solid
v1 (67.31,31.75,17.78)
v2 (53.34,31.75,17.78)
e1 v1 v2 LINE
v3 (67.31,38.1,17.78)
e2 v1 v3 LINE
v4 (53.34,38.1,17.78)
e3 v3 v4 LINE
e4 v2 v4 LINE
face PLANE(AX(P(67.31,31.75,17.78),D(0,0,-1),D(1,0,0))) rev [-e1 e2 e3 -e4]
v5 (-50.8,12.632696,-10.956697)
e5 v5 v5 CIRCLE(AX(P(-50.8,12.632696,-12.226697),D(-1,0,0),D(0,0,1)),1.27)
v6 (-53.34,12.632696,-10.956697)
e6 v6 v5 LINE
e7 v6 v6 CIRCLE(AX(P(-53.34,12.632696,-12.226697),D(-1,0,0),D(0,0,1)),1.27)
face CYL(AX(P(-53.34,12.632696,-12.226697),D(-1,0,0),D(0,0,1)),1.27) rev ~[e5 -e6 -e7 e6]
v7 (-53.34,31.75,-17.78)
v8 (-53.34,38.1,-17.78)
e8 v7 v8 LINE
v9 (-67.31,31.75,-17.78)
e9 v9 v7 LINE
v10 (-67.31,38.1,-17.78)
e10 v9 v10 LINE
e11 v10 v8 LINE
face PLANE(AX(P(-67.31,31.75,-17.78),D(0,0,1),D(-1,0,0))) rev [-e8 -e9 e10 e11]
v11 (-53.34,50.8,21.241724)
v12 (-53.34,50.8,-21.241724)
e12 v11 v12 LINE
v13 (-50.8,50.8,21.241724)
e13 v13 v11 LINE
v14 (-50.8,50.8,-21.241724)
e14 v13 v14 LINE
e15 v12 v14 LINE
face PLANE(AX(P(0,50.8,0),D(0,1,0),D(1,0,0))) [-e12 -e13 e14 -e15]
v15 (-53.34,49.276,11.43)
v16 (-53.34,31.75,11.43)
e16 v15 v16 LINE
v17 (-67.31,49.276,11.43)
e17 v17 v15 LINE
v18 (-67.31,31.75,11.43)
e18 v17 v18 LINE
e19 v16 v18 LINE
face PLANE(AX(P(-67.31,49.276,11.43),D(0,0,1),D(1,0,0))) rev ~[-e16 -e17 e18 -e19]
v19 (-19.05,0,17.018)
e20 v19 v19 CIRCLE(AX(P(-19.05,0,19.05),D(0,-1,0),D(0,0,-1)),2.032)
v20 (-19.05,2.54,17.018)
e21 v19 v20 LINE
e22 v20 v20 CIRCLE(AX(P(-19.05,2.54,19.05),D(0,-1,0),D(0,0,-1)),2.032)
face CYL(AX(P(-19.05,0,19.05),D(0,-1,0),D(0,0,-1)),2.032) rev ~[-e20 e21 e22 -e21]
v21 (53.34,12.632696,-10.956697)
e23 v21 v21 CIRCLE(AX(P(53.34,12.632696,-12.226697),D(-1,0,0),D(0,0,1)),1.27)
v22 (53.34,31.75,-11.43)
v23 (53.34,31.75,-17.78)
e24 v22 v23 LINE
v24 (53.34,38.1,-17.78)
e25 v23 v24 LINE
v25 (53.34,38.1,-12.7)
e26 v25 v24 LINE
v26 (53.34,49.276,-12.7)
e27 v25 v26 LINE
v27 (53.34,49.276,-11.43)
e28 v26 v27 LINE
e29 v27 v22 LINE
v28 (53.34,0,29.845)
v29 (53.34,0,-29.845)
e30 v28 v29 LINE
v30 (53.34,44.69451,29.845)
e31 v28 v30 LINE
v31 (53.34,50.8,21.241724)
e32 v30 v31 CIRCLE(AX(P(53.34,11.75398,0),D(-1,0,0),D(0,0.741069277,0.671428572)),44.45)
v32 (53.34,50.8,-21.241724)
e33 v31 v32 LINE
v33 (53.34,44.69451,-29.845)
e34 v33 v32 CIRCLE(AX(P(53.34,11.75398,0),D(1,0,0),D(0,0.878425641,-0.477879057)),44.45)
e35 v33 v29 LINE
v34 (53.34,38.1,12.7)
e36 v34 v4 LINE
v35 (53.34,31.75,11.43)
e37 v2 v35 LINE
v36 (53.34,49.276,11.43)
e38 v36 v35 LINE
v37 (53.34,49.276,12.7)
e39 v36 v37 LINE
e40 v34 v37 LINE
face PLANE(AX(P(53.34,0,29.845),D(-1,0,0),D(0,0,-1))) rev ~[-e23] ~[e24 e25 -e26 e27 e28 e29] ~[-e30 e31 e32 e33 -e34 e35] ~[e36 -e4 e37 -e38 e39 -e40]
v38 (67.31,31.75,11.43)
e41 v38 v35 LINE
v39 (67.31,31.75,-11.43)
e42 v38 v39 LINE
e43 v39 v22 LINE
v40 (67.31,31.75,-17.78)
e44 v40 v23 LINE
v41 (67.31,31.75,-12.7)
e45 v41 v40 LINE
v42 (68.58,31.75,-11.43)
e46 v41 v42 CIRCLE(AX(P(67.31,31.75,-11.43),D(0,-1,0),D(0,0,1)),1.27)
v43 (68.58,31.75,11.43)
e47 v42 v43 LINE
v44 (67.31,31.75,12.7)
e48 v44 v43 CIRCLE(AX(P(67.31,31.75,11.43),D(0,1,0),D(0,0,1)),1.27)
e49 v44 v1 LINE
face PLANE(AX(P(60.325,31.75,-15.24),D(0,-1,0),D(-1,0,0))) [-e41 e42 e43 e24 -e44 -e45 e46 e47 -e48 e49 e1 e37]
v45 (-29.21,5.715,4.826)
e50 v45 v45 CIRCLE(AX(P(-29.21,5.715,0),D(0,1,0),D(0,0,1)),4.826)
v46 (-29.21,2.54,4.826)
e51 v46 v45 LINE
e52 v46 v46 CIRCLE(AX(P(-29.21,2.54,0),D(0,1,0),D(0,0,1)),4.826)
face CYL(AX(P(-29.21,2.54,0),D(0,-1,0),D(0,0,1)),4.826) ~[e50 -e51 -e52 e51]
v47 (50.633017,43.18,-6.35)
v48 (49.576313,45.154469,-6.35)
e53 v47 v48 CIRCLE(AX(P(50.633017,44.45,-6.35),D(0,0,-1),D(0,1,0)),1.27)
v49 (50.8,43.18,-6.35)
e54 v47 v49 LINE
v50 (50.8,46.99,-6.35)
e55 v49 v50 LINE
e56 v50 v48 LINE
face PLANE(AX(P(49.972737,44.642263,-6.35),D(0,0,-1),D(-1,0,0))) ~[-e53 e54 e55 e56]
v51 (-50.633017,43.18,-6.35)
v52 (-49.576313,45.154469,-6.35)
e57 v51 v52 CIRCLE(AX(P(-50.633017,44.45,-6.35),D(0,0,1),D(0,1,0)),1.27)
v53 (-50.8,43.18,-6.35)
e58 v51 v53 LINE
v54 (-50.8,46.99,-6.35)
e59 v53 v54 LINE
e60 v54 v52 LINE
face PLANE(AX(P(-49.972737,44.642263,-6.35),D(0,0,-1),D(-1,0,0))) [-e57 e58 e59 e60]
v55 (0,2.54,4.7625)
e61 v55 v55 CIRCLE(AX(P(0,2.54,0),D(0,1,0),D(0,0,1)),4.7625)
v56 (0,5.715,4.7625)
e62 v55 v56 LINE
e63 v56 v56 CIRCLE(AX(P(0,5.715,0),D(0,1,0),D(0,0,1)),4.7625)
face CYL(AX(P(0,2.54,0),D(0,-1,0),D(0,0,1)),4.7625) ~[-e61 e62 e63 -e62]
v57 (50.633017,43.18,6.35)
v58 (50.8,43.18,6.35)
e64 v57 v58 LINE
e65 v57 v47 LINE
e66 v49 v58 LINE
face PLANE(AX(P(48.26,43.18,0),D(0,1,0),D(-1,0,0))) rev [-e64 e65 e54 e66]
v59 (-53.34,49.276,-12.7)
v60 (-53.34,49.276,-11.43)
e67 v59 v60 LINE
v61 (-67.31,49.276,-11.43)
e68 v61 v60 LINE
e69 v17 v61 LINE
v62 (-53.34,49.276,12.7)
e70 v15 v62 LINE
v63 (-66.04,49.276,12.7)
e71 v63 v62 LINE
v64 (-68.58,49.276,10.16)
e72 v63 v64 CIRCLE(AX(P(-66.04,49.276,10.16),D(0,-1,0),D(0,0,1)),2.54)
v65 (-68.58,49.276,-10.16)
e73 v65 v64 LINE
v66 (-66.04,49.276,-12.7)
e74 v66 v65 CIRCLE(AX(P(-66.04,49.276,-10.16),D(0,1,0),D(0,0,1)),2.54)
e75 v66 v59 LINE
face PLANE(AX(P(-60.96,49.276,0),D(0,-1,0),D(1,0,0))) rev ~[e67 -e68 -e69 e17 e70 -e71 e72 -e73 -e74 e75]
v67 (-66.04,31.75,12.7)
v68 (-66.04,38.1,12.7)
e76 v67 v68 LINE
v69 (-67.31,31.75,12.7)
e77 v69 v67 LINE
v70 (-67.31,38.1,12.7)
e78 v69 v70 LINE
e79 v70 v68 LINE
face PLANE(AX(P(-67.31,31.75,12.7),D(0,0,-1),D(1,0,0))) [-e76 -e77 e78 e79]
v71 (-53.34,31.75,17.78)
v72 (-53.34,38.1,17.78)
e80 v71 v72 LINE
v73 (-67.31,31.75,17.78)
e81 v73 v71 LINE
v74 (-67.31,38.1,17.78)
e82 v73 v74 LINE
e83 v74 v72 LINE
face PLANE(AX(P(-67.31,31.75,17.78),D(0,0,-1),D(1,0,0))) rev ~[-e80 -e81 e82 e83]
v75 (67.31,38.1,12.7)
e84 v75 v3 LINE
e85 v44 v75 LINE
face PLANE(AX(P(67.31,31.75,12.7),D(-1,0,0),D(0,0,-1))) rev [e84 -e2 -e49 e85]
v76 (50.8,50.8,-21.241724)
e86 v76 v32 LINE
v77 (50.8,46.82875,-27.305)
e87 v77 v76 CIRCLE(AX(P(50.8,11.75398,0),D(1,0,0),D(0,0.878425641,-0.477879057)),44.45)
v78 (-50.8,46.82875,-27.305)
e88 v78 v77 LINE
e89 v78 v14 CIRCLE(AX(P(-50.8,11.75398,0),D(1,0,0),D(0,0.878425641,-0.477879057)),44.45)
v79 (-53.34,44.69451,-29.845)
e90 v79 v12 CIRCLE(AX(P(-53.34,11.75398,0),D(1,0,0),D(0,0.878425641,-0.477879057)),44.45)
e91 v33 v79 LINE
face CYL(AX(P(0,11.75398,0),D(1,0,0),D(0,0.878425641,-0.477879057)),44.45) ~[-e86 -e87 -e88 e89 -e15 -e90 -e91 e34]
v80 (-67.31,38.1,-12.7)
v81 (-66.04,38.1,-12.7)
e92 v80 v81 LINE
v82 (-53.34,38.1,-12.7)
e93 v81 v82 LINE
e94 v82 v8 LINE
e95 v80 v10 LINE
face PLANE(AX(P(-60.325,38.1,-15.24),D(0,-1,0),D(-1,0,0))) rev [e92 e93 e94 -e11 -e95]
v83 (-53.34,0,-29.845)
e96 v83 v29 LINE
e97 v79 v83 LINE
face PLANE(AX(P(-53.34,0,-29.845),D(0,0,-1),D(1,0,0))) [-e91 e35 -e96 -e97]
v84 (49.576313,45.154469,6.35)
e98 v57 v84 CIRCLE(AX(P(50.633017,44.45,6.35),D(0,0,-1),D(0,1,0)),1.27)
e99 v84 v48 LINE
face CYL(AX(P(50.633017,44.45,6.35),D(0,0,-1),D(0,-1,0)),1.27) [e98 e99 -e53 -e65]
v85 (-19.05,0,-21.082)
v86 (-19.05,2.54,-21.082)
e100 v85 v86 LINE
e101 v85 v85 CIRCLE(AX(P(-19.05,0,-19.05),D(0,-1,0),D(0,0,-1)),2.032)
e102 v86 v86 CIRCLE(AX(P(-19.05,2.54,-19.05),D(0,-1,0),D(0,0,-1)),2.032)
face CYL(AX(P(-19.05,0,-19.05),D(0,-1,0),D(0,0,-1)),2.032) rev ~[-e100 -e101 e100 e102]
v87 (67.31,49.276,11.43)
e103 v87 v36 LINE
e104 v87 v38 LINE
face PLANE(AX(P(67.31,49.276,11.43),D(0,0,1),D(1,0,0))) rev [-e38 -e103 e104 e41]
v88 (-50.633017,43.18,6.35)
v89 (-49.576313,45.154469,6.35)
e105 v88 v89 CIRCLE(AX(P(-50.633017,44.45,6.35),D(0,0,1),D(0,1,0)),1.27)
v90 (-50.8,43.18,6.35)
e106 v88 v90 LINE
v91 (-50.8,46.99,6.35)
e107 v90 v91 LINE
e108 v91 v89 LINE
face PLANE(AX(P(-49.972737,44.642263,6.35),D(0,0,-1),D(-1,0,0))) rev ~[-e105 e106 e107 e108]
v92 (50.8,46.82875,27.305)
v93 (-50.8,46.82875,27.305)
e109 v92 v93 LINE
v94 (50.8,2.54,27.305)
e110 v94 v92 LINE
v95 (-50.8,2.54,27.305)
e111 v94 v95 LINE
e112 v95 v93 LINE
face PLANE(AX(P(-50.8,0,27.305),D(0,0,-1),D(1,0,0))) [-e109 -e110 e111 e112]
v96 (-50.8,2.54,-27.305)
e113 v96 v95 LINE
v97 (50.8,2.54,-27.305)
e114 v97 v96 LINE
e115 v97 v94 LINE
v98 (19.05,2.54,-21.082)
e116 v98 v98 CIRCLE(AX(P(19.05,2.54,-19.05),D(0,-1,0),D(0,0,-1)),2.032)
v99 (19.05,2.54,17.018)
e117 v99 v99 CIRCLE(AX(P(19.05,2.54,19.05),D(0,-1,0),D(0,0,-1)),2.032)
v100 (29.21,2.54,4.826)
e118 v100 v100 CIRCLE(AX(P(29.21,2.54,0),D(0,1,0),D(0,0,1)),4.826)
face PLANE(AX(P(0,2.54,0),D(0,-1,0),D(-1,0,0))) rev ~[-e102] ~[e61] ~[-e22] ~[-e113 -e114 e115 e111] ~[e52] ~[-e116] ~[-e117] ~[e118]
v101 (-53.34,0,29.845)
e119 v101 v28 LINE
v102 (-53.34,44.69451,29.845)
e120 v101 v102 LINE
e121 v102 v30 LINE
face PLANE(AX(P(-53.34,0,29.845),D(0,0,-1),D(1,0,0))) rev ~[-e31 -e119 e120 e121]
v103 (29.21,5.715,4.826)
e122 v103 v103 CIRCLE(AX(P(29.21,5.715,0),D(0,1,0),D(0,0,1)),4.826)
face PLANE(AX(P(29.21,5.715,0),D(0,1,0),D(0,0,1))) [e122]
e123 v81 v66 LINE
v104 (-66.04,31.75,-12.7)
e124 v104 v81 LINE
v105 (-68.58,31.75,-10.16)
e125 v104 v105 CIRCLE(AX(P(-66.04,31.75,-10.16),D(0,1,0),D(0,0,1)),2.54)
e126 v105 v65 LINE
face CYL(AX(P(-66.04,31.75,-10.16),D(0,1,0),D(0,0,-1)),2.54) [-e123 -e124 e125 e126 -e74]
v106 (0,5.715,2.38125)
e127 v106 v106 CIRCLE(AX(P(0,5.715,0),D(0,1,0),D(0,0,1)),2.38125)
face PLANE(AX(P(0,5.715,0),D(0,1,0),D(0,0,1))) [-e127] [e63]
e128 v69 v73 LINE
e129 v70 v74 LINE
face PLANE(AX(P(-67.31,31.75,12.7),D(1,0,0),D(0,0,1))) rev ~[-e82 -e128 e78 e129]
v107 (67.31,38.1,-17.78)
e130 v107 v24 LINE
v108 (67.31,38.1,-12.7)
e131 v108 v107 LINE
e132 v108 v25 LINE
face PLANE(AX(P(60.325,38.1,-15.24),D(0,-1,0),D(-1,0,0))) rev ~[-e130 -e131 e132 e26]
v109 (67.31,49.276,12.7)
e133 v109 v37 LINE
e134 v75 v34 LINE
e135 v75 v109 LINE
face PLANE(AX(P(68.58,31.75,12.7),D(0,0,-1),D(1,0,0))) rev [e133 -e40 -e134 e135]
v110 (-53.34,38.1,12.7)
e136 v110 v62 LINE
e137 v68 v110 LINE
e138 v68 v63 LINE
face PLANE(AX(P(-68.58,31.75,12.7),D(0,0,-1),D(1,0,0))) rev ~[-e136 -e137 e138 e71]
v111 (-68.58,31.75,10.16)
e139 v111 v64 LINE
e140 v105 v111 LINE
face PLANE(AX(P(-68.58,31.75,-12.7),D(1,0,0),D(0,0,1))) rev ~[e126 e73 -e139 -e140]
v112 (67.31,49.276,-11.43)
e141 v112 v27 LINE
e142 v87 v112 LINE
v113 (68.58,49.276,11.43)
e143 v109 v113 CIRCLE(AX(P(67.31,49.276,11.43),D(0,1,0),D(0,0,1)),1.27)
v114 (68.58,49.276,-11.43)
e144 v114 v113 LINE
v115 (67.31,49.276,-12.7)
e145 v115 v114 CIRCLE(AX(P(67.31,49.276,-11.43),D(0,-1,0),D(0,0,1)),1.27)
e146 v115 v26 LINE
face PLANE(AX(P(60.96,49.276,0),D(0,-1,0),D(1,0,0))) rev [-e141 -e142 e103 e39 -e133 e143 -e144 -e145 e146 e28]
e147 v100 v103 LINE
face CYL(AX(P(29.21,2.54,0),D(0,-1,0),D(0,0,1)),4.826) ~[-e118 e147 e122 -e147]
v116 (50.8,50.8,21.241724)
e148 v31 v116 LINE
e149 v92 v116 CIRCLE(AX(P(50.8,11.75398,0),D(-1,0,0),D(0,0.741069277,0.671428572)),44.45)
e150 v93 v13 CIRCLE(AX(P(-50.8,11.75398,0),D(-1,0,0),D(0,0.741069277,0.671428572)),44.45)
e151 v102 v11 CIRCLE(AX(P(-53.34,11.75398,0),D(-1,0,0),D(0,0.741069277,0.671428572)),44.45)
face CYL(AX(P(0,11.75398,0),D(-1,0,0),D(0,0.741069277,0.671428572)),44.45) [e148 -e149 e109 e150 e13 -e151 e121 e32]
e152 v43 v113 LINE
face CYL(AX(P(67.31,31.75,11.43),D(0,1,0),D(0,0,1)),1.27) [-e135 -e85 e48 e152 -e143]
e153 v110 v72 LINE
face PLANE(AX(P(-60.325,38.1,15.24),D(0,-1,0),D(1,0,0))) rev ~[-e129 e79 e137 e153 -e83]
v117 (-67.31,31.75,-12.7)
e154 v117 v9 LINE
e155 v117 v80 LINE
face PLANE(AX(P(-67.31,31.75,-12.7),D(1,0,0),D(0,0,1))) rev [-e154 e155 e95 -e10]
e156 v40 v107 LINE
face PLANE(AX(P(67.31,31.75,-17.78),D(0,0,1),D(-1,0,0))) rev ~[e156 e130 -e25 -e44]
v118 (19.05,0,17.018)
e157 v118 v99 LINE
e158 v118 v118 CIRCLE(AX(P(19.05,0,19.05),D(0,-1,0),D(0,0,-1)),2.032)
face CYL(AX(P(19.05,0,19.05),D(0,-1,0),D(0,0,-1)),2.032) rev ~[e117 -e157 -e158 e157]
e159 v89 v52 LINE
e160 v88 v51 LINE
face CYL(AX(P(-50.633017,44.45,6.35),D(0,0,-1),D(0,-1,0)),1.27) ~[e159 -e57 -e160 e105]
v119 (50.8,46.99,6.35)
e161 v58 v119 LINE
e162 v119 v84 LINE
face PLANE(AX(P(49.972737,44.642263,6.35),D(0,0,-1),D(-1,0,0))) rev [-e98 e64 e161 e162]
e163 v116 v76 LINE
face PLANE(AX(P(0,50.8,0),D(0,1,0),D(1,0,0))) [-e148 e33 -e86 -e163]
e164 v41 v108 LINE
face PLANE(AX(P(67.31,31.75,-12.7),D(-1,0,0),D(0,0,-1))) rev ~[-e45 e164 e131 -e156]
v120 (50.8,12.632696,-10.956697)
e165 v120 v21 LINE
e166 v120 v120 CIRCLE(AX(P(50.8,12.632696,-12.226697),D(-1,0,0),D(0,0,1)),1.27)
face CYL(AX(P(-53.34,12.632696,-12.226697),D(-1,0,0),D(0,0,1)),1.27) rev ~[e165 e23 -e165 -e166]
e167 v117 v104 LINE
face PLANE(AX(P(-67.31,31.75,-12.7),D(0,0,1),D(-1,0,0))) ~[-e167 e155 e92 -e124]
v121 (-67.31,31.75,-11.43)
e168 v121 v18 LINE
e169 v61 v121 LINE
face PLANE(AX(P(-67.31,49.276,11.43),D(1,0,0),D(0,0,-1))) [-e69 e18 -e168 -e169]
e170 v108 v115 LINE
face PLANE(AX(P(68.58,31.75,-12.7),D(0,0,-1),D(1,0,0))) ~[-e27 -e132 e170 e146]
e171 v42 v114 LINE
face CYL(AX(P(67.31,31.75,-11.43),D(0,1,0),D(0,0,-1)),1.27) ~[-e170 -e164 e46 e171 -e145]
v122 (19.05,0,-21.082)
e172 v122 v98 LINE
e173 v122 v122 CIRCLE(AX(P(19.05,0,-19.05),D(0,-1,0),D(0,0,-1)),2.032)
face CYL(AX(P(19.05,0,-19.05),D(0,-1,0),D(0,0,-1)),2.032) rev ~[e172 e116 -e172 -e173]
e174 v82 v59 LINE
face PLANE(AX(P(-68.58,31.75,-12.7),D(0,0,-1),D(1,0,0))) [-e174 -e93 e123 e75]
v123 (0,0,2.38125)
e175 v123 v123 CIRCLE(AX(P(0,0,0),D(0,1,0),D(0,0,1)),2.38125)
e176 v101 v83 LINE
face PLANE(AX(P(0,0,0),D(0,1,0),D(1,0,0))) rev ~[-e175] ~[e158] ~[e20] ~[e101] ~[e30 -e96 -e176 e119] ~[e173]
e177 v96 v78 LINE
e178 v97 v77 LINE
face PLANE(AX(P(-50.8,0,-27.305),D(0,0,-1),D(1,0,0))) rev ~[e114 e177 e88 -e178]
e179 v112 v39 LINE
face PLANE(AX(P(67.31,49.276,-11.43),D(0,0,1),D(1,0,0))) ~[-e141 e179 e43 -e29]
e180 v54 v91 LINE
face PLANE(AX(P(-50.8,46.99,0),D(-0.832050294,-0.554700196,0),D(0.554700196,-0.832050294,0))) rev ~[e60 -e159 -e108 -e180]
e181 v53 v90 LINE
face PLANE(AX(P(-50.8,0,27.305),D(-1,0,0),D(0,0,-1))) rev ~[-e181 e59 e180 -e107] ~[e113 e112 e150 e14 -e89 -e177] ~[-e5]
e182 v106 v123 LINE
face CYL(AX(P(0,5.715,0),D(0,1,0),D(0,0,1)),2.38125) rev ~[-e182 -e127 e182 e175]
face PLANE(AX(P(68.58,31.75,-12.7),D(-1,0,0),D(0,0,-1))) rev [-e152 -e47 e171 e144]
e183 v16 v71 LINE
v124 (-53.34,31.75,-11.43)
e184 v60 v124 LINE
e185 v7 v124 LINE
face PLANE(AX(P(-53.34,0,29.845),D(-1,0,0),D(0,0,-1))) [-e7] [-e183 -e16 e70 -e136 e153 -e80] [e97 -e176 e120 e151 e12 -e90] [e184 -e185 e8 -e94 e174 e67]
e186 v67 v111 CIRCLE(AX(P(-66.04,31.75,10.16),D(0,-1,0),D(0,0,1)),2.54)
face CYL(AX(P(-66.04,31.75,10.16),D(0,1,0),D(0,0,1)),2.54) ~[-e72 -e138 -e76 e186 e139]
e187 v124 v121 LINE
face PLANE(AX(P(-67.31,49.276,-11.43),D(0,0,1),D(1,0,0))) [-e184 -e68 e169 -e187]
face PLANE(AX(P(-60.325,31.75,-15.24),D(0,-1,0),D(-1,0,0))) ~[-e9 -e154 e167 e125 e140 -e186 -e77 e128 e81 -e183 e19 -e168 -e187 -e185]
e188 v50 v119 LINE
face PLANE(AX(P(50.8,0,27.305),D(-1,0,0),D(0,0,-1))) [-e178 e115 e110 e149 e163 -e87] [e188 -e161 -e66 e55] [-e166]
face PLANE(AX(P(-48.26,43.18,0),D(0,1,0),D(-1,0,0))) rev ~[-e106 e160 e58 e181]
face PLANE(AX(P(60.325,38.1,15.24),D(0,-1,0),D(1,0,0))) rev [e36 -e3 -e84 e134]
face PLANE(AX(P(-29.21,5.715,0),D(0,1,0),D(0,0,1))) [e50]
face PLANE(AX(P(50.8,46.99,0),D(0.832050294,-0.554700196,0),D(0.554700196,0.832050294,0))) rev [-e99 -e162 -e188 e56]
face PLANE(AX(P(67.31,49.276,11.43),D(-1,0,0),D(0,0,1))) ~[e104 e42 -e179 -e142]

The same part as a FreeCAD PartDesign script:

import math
import FreeCAD as App
import Part
import Sketcher
Q = App.Units.Quantity


def edges_at(feature, points):
    """Names of the edges that pass closest to the given points."""
    edges = feature.Shape.Edges
    near = lambda p: min(range(len(edges)), key=lambda i: edges[i].distToShape(Part.Vertex(*p))[0])
    return sorted({f"Edge{near(p) + 1}" for p in points})

doc = App.newDocument("Part")
body = doc.addObject("PartDesign::Body", "Body")

# Sketch on XZ plane
sketch1 = body.newObject("Sketcher::SketchObject", "Sketch")
sketch1.AttachmentSupport = (doc.getObject("XZ_Plane"), [""])
sketch1.MapMode = "FlatFace"
sketch1.addGeometry(Part.LineSegment(App.Vector(-53.34, -29.845, 0), App.Vector(-53.34, 29.845, 0)), False)
sketch1.addGeometry(Part.LineSegment(App.Vector(-53.34, 29.845, 0), App.Vector(53.34, 29.845, 0)), False)
sketch1.addGeometry(Part.LineSegment(App.Vector(53.34, 29.845, 0), App.Vector(53.34, -29.845, 0)), False)
sketch1.addGeometry(Part.LineSegment(App.Vector(53.34, -29.845, 0), App.Vector(-53.34, -29.845, 0)), False)
sketch1.addGeometry(Part.LineSegment(App.Vector(50.8, 27.305, 0), App.Vector(-50.8, 27.305, 0)), False)
sketch1.addGeometry(Part.LineSegment(App.Vector(-50.8, 27.305, 0), App.Vector(-50.8, -27.305, 0)), False)
sketch1.addGeometry(Part.LineSegment(App.Vector(-50.8, -27.305, 0), App.Vector(50.8, -27.305, 0)), False)
sketch1.addGeometry(Part.LineSegment(App.Vector(50.8, -27.305, 0), App.Vector(50.8, 27.305, 0)), False)
sketch1.addConstraint(Sketcher.Constraint("Coincident", 0, 2, 1, 1))
sketch1.addConstraint(Sketcher.Constraint("Coincident", 1, 2, 2, 1))
sketch1.addConstraint(Sketcher.Constraint("Coincident", 2, 2, 3, 1))
sketch1.addConstraint(Sketcher.Constraint("Coincident", 3, 2, 0, 1))
sketch1.addConstraint(Sketcher.Constraint("Coincident", 4, 2, 5, 1))
sketch1.addConstraint(Sketcher.Constraint("Coincident", 5, 2, 6, 1))
sketch1.addConstraint(Sketcher.Constraint("Coincident", 6, 2, 7, 1))
sketch1.addConstraint(Sketcher.Constraint("Coincident", 7, 2, 4, 1))
sketch1.addConstraint(Sketcher.Constraint("Vertical", 0))
sketch1.addConstraint(Sketcher.Constraint("Horizontal", 1))
sketch1.addConstraint(Sketcher.Constraint("Vertical", 2))
sketch1.addConstraint(Sketcher.Constraint("Horizontal", 3))
sketch1.addConstraint(Sketcher.Constraint("Horizontal", 4))
sketch1.addConstraint(Sketcher.Constraint("Vertical", 5))
sketch1.addConstraint(Sketcher.Constraint("Horizontal", 6))
sketch1.addConstraint(Sketcher.Constraint("Vertical", 7))
sketch1.addConstraint(Sketcher.Constraint("Symmetric", 0, 2, 2, 2, -1, 1))
sketch1.addConstraint(Sketcher.Constraint("Symmetric", 4, 2, 6, 2, -1, 1))
sketch1.addConstraint(Sketcher.Constraint("DistanceX", 4, 2, 4, 1, Q("4 in")))
sketch1.addConstraint(Sketcher.Constraint("DistanceX", 1, 1, 1, 2, Q("4.2 in")))
sketch1.addConstraint(Sketcher.Constraint("DistanceY", 0, 1, 0, 2, Q("2.35 in")))
sketch1.addConstraint(Sketcher.Constraint("DistanceY", 5, 2, 5, 1, Q("2.15 in")))
pad1 = body.newObject("PartDesign::Pad", "Pad")
pad1.Profile = sketch1
pad1.Length = Q("2 in")
pad1.Reversed = True

# Sketch on XZ plane
sketch2 = body.newObject("Sketcher::SketchObject", "Sketch001")
sketch2.AttachmentSupport = (doc.getObject("XZ_Plane"), [""])
sketch2.MapMode = "FlatFace"
sketch2.addGeometry(Part.LineSegment(App.Vector(53.34, -29.845, 0), App.Vector(53.34, 29.845, 0)), False)
sketch2.addGeometry(Part.LineSegment(App.Vector(53.34, 29.845, 0), App.Vector(-53.34, 29.845, 0)), False)
sketch2.addGeometry(Part.LineSegment(App.Vector(-53.34, 29.845, 0), App.Vector(-53.34, -29.845, 0)), False)
sketch2.addGeometry(Part.LineSegment(App.Vector(-53.34, -29.845, 0), App.Vector(53.34, -29.845, 0)), False)
sketch2.addConstraint(Sketcher.Constraint("Coincident", 0, 2, 1, 1))
sketch2.addConstraint(Sketcher.Constraint("Coincident", 1, 2, 2, 1))
sketch2.addConstraint(Sketcher.Constraint("Coincident", 2, 2, 3, 1))
sketch2.addConstraint(Sketcher.Constraint("Coincident", 3, 2, 0, 1))
sketch2.addConstraint(Sketcher.Constraint("Vertical", 0))
sketch2.addConstraint(Sketcher.Constraint("Horizontal", 1))
sketch2.addConstraint(Sketcher.Constraint("Vertical", 2))
sketch2.addConstraint(Sketcher.Constraint("Horizontal", 3))
sketch2.addConstraint(Sketcher.Constraint("Symmetric", 0, 2, 2, 2, -1, 1))
sketch2.addConstraint(Sketcher.Constraint("DistanceX", 1, 2, 1, 1, Q("4.2 in")))
sketch2.addConstraint(Sketcher.Constraint("DistanceY", 0, 1, 0, 2, Q("2.35 in")))
pad2 = body.newObject("PartDesign::Pad", "Pad001")
pad2.Profile = sketch2
pad2.Length = Q("0.1 in")
pad2.Reversed = True

# Sketch on XZ plane
sketch3 = body.newObject("Sketcher::SketchObject", "Sketch002")
sketch3.AttachmentSupport = (doc.getObject("XZ_Plane"), [""])
sketch3.MapMode = "FlatFace"
sketch3.addGeometry(Part.Circle(App.Vector(-19.05, 19.05, 0), App.Vector(0, 0, 1), 2.032), False)
sketch3.addGeometry(Part.Circle(App.Vector(19.05, 19.05, 0), App.Vector(0, 0, 1), 2.032), False)
sketch3.addGeometry(Part.Circle(App.Vector(19.05, -19.05, 0), App.Vector(0, 0, 1), 2.032), False)
sketch3.addGeometry(Part.Circle(App.Vector(-19.05, -19.05, 0), App.Vector(0, 0, 1), 2.032), False)
sketch3.addConstraint(Sketcher.Constraint("Equal", 0, 1))
sketch3.addConstraint(Sketcher.Constraint("Equal", 1, 2))
sketch3.addConstraint(Sketcher.Constraint("Equal", 2, 3))
sketch3.addConstraint(Sketcher.Constraint("Symmetric", 0, 3, 2, 3, -1, 1))
sketch3.addConstraint(Sketcher.Constraint("Symmetric", 1, 3, 3, 3, -1, 1))
sketch3.addConstraint(Sketcher.Constraint("Symmetric", 0, 3, 1, 3, -2))
sketch3.addConstraint(Sketcher.Constraint("Diameter", 0, Q("0.16 in")))
sketch3.addConstraint(Sketcher.Constraint("DistanceX", 0, 3, 1, 3, Q("1.5 in")))
sketch3.addConstraint(Sketcher.Constraint("DistanceY", 2, 3, 1, 3, Q("1.5 in")))
pocket1 = body.newObject("PartDesign::Pocket", "Pocket")
pocket1.Profile = sketch3
pocket1.Length = Q("0.1 in")

# Sketch on XZ plane
sketch4 = body.newObject("Sketcher::SketchObject", "Sketch003")
sketch4.AttachmentSupport = (doc.getObject("XZ_Plane"), [""])
sketch4.MapMode = "FlatFace"
sketch4.AttachmentOffset = App.Placement(App.Vector(0, 0, -1.25 * 25.4), App.Rotation())
sketch4.addGeometry(Part.LineSegment(App.Vector(-68.58, 12.7, 0), App.Vector(-68.58, -12.7, 0)), False)
sketch4.addGeometry(Part.LineSegment(App.Vector(-68.58, -12.7, 0), App.Vector(-53.34, -12.7, 0)), False)
sketch4.addGeometry(Part.LineSegment(App.Vector(-53.34, -12.7, 0), App.Vector(-53.34, 12.7, 0)), False)
sketch4.addGeometry(Part.LineSegment(App.Vector(-53.34, 12.7, 0), App.Vector(-68.58, 12.7, 0)), False)
sketch4.addConstraint(Sketcher.Constraint("Coincident", 0, 2, 1, 1))
sketch4.addConstraint(Sketcher.Constraint("Coincident", 1, 2, 2, 1))
sketch4.addConstraint(Sketcher.Constraint("Coincident", 2, 2, 3, 1))
sketch4.addConstraint(Sketcher.Constraint("Coincident", 3, 2, 0, 1))
sketch4.addConstraint(Sketcher.Constraint("Vertical", 0))
sketch4.addConstraint(Sketcher.Constraint("Horizontal", 1))
sketch4.addConstraint(Sketcher.Constraint("Vertical", 2))
sketch4.addConstraint(Sketcher.Constraint("Horizontal", 3))
sketch4.addConstraint(Sketcher.Constraint("DistanceY", 0, 2, 0, 1, Q("1 in")))
sketch4.addConstraint(Sketcher.Constraint("DistanceX", 1, 1, 1, 2, Q("0.6 in")))
sketch4.addConstraint(Sketcher.Constraint("DistanceX", 0, 2, -1, 1, Q("2.7 in")))
sketch4.addConstraint(Sketcher.Constraint("DistanceY", 0, 2, -1, 1, Q("0.5 in")))
pad3 = body.newObject("PartDesign::Pad", "Pad002")
pad3.Profile = sketch4
pad3.Length = Q("0.69 in")
pad3.Reversed = True

# Sketch on XZ plane
sketch5 = body.newObject("Sketcher::SketchObject", "Sketch004")
sketch5.AttachmentSupport = (doc.getObject("XZ_Plane"), [""])
sketch5.MapMode = "FlatFace"
sketch5.AttachmentOffset = App.Placement(App.Vector(0, 0, -1.94 * 25.4), App.Rotation())
sketch5.addGeometry(Part.LineSegment(App.Vector(-67.31, -11.43, 0), App.Vector(-67.31, 11.43, 0)), False)
sketch5.addGeometry(Part.LineSegment(App.Vector(-67.31, 11.43, 0), App.Vector(-53.34, 11.43, 0)), False)
sketch5.addGeometry(Part.LineSegment(App.Vector(-53.34, 11.43, 0), App.Vector(-53.34, -11.43, 0)), False)
sketch5.addGeometry(Part.LineSegment(App.Vector(-53.34, -11.43, 0), App.Vector(-67.31, -11.43, 0)), False)
sketch5.addConstraint(Sketcher.Constraint("Coincident", 0, 2, 1, 1))
sketch5.addConstraint(Sketcher.Constraint("Coincident", 1, 2, 2, 1))
sketch5.addConstraint(Sketcher.Constraint("Coincident", 2, 2, 3, 1))
sketch5.addConstraint(Sketcher.Constraint("Coincident", 3, 2, 0, 1))
sketch5.addConstraint(Sketcher.Constraint("Vertical", 0))
sketch5.addConstraint(Sketcher.Constraint("Horizontal", 1))
sketch5.addConstraint(Sketcher.Constraint("Vertical", 2))
sketch5.addConstraint(Sketcher.Constraint("Horizontal", 3))
sketch5.addConstraint(Sketcher.Constraint("DistanceY", 0, 1, 0, 2, Q("0.9 in")))
sketch5.addConstraint(Sketcher.Constraint("DistanceX", 1, 1, 1, 2, Q("0.55 in")))
sketch5.addConstraint(Sketcher.Constraint("DistanceX", 1, 2, -1, 1, Q("2.1 in")))
sketch5.addConstraint(Sketcher.Constraint("DistanceY", -1, 1, 0, 2, Q("0.45 in")))
pocket2 = body.newObject("PartDesign::Pocket", "Pocket001")
pocket2.Profile = sketch5
pocket2.Length = Q("0.91 in")
pocket2.Reversed = True

# Sketch on YZ plane
sketch6 = body.newObject("Sketcher::SketchObject", "Sketch005")
sketch6.AttachmentSupport = (doc.getObject("YZ_Plane"), [""])
sketch6.MapMode = "FlatFace"
sketch6.AttachmentOffset = App.Placement(App.Vector(0, 0, -2.1 * 25.4), App.Rotation())
sketch6.addGeometry(Part.Circle(App.Vector(12.632696, -12.226697, 0), App.Vector(0, 0, 1), 1.27), False)
sketch6.addConstraint(Sketcher.Constraint("Diameter", 0, Q("0.1 in")))
sketch6.addConstraint(Sketcher.Constraint("DistanceX", -1, 1, 0, 3, Q("12.632696 mm")))
sketch6.addConstraint(Sketcher.Constraint("DistanceY", 0, 3, -1, 1, Q("12.226697 mm")))
pocket3 = body.newObject("PartDesign::Pocket", "Pocket002")
pocket3.Profile = sketch6
pocket3.Length = 122.833948
pocket3.Reversed = True
doc.recompute()

fillet = body.newObject("PartDesign::Fillet", "Fillet")
fillet.Base = (pocket3, edges_at(pocket3, [(-68.58, 40.513, -12.7), (-68.58, 40.513, 12.7)]))
fillet.Radius = Q("0.1 in")

# Sketch on XZ plane
sketch7 = body.newObject("Sketcher::SketchObject", "Sketch006")
sketch7.AttachmentSupport = (doc.getObject("XZ_Plane"), [""])
sketch7.MapMode = "FlatFace"
sketch7.AttachmentOffset = App.Placement(App.Vector(0, 0, -0.1 * 25.4), App.Rotation())
sketch7.addGeometry(Part.Circle(App.Vector(0, 0, 0), App.Vector(0, 0, 1), 4.7625), False)
sketch7.addConstraint(Sketcher.Constraint("Coincident", 0, 3, -1, 1))
sketch7.addConstraint(Sketcher.Constraint("Diameter", 0, Q("0.375 in")))
pad4 = body.newObject("PartDesign::Pad", "Pad003")
pad4.Profile = sketch7
pad4.Length = Q("0.125 in")
pad4.Reversed = True

# Sketch on XZ plane
sketch8 = body.newObject("Sketcher::SketchObject", "Sketch007")
sketch8.AttachmentSupport = (doc.getObject("XZ_Plane"), [""])
sketch8.MapMode = "FlatFace"
sketch8.AttachmentOffset = App.Placement(App.Vector(0, 0, -0.225 * 25.4), App.Rotation())
sketch8.addGeometry(Part.Circle(App.Vector(0, 0, 0), App.Vector(0, 0, 1), 2.38125), False)
sketch8.addConstraint(Sketcher.Constraint("Coincident", 0, 3, -1, 1))
sketch8.addConstraint(Sketcher.Constraint("Diameter", 0, Q("0.1875 in")))
pocket4 = body.newObject("PartDesign::Pocket", "Pocket003")
pocket4.Profile = sketch8
pocket4.Type = "ThroughAll"
pocket4.Reversed = True

# Sketch on XY plane
sketch9 = body.newObject("Sketcher::SketchObject", "Sketch008")
sketch9.AttachmentSupport = (doc.getObject("XY_Plane"), [""])
sketch9.MapMode = "FlatFace"
sketch9.addGeometry(Part.LineSegment(App.Vector(-48.26, 43.18, 0), App.Vector(-50.8, 46.99, 0)), False)
sketch9.addGeometry(Part.LineSegment(App.Vector(-50.8, 46.99, 0), App.Vector(-50.8, 43.18, 0)), False)
sketch9.addGeometry(Part.LineSegment(App.Vector(-50.8, 43.18, 0), App.Vector(-48.26, 43.18, 0)), False)
sketch9.addConstraint(Sketcher.Constraint("Coincident", 0, 2, 1, 1))
sketch9.addConstraint(Sketcher.Constraint("Coincident", 1, 2, 2, 1))
sketch9.addConstraint(Sketcher.Constraint("Coincident", 2, 2, 0, 1))
sketch9.addConstraint(Sketcher.Constraint("Vertical", 1))
sketch9.addConstraint(Sketcher.Constraint("Horizontal", 2))
sketch9.addConstraint(Sketcher.Constraint("DistanceX", 2, 1, 2, 2, Q("0.1 in")))
sketch9.addConstraint(Sketcher.Constraint("DistanceX", 0, 2, -1, 1, Q("2 in")))
sketch9.addConstraint(Sketcher.Constraint("DistanceY", 1, 2, 1, 1, Q("0.15 in")))
sketch9.addConstraint(Sketcher.Constraint("DistanceY", -1, 1, 1, 2, Q("1.7 in")))
pad5 = body.newObject("PartDesign::Pad", "Pad004")
pad5.Profile = sketch9
pad5.Length = Q("0.5 in")
pad5.Midplane = True
doc.recompute()

fillet2 = body.newObject("PartDesign::Fillet", "Fillet001")
fillet2.Base = (pad5, edges_at(pad5, [(-48.26, 43.18, 0)]))
fillet2.Radius = Q("0.05 in")
doc.recompute()

mirrored = body.newObject("PartDesign::Mirrored", "Mirrored")
mirrored.Originals = [pad5]
mirrored.MirrorPlane = (doc.getObject("YZ_Plane"), [""])
body.Tip = mirrored
doc.recompute()

fillet3 = body.newObject("PartDesign::Fillet", "Fillet002")
fillet3.Base = (mirrored, edges_at(mirrored, [(48.26, 43.18, 0)]))
fillet3.Radius = Q("0.05 in")
doc.recompute()

mirrored2 = body.newObject("PartDesign::Mirrored", "Mirrored001")
mirrored2.Originals = [pad3, pocket2]
mirrored2.MirrorPlane = (doc.getObject("YZ_Plane"), [""])
body.Tip = mirrored2
doc.recompute()

fillet4 = body.newObject("PartDesign::Fillet", "Fillet003")
fillet4.Base = (mirrored2, edges_at(mirrored2, [(68.58, 40.513, 12.7), (68.58, 40.513, -12.7)]))
fillet4.Radius = Q("0.05 in")

# Sketch on XZ plane
sketch10 = body.newObject("Sketcher::SketchObject", "Sketch009")
sketch10.AttachmentSupport = (doc.getObject("XZ_Plane"), [""])
sketch10.MapMode = "FlatFace"
sketch10.AttachmentOffset = App.Placement(App.Vector(0, 0, -1.25 * 25.4), App.Rotation())
sketch10.addGeometry(Part.LineSegment(App.Vector(-67.31, 17.78, 0), App.Vector(-67.31, 12.7, 0)), False)
sketch10.addGeometry(Part.LineSegment(App.Vector(-67.31, 12.7, 0), App.Vector(-53.34, 12.7, 0)), False)
sketch10.addGeometry(Part.LineSegment(App.Vector(-53.34, 12.7, 0), App.Vector(-53.34, 17.78, 0)), False)
sketch10.addGeometry(Part.LineSegment(App.Vector(-53.34, 17.78, 0), App.Vector(-67.31, 17.78, 0)), False)
sketch10.addConstraint(Sketcher.Constraint("Coincident", 0, 2, 1, 1))
sketch10.addConstraint(Sketcher.Constraint("Coincident", 1, 2, 2, 1))
sketch10.addConstraint(Sketcher.Constraint("Coincident", 2, 2, 3, 1))
sketch10.addConstraint(Sketcher.Constraint("Coincident", 3, 2, 0, 1))
sketch10.addConstraint(Sketcher.Constraint("Vertical", 0))
sketch10.addConstraint(Sketcher.Constraint("Horizontal", 1))
sketch10.addConstraint(Sketcher.Constraint("Vertical", 2))
sketch10.addConstraint(Sketcher.Constraint("Horizontal", 3))
sketch10.addConstraint(Sketcher.Constraint("DistanceY", 0, 2, 0, 1, Q("0.2 in")))
sketch10.addConstraint(Sketcher.Constraint("DistanceX", 1, 1, 1, 2, Q("0.55 in")))
sketch10.addConstraint(Sketcher.Constraint("DistanceY", -1, 1, 0, 2, Q("0.5 in")))
sketch10.addConstraint(Sketcher.Constraint("DistanceX", 1, 2, -1, 1, Q("2.1 in")))
pad6 = body.newObject("PartDesign::Pad", "Pad005")
pad6.Profile = sketch10
pad6.Length = Q("0.25 in")
pad6.Reversed = True
doc.recompute()

mirrored3 = body.newObject("PartDesign::Mirrored", "Mirrored002")
mirrored3.Originals = [pad6]
mirrored3.MirrorPlane = (doc.getObject("XY_Plane"), [""])
body.Tip = mirrored3
doc.recompute()

mirrored4 = body.newObject("PartDesign::Mirrored", "Mirrored003")
mirrored4.Originals = [pad6]
mirrored4.MirrorPlane = (doc.getObject("YZ_Plane"), [""])
body.Tip = mirrored4

# Sketch on XZ plane
sketch11 = body.newObject("Sketcher::SketchObject", "Sketch010")
sketch11.AttachmentSupport = (doc.getObject("XZ_Plane"), [""])
sketch11.MapMode = "FlatFace"
sketch11.AttachmentOffset = App.Placement(App.Vector(0, 0, -1.25 * 25.4), App.Rotation())
sketch11.addGeometry(Part.LineSegment(App.Vector(67.31, -17.78, 0), App.Vector(67.31, -12.7, 0)), False)
sketch11.addGeometry(Part.LineSegment(App.Vector(67.31, -12.7, 0), App.Vector(53.34, -12.7, 0)), False)
sketch11.addGeometry(Part.LineSegment(App.Vector(53.34, -12.7, 0), App.Vector(53.34, -17.78, 0)), False)
sketch11.addGeometry(Part.LineSegment(App.Vector(53.34, -17.78, 0), App.Vector(67.31, -17.78, 0)), False)
sketch11.addConstraint(Sketcher.Constraint("Coincident", 0, 2, 1, 1))
sketch11.addConstraint(Sketcher.Constraint("Coincident", 1, 2, 2, 1))
sketch11.addConstraint(Sketcher.Constraint("Coincident", 2, 2, 3, 1))
sketch11.addConstraint(Sketcher.Constraint("Coincident", 3, 2, 0, 1))
sketch11.addConstraint(Sketcher.Constraint("Vertical", 0))
sketch11.addConstraint(Sketcher.Constraint("Horizontal", 1))
sketch11.addConstraint(Sketcher.Constraint("Vertical", 2))
sketch11.addConstraint(Sketcher.Constraint("Horizontal", 3))
sketch11.addConstraint(Sketcher.Constraint("DistanceY", 0, 1, 0, 2, Q("0.2 in")))
sketch11.addConstraint(Sketcher.Constraint("DistanceX", 1, 2, 1, 1, Q("0.55 in")))
sketch11.addConstraint(Sketcher.Constraint("DistanceY", 0, 2, -1, 1, Q("0.5 in")))
sketch11.addConstraint(Sketcher.Constraint("DistanceX", -1, 1, 1, 2, Q("2.1 in")))
pad7 = body.newObject("PartDesign::Pad", "Pad006")
pad7.Profile = sketch11
pad7.Length = Q("0.25 in")
pad7.Reversed = True

# Sketch on YZ plane
sketch12 = body.newObject("Sketcher::SketchObject", "Sketch011")
sketch12.AttachmentSupport = (doc.getObject("YZ_Plane"), [""])
sketch12.MapMode = "FlatFace"
sketch12.addGeometry(Part.LineSegment(App.Vector(50.8, 29.845, 0), App.Vector(44.69451, 29.845, 0)), False)
sketch12.addGeometry(Part.ArcOfCircle(Part.Circle(App.Vector(11.75398, 0, 0), App.Vector(0, 0, 1), 44.45), math.radians(28.546971), math.radians(42.177419)), False)
sketch12.addGeometry(Part.LineSegment(App.Vector(50.8, 21.241724, 0), App.Vector(50.8, 29.845, 0)), False)
sketch12.addGeometry(Part.LineSegment(App.Vector(50.8, -29.845, 0), App.Vector(50.8, -21.241724, 0)), False)
sketch12.addGeometry(Part.ArcOfCircle(Part.Circle(App.Vector(11.75398, 0, 0), App.Vector(0, 0, 1), 44.45), math.radians(-42.177419), math.radians(-28.546971)), False)
sketch12.addGeometry(Part.LineSegment(App.Vector(44.69451, -29.845, 0), App.Vector(50.8, -29.845, 0)), False)
sketch12.addConstraint(Sketcher.Constraint("Coincident", 0, 2, 1, 2))
sketch12.addConstraint(Sketcher.Constraint("Coincident", 1, 1, 2, 1))
sketch12.addConstraint(Sketcher.Constraint("Coincident", 2, 2, 0, 1))
sketch12.addConstraint(Sketcher.Constraint("Coincident", 3, 2, 4, 2))
sketch12.addConstraint(Sketcher.Constraint("Coincident", 4, 1, 5, 1))
sketch12.addConstraint(Sketcher.Constraint("Coincident", 5, 2, 3, 1))
sketch12.addConstraint(Sketcher.Constraint("Horizontal", 0))
sketch12.addConstraint(Sketcher.Constraint("Vertical", 2))
sketch12.addConstraint(Sketcher.Constraint("Vertical", 3))
sketch12.addConstraint(Sketcher.Constraint("Horizontal", 5))
sketch12.addConstraint(Sketcher.Constraint("Coincident", 4, 3, 1, 3))
sketch12.addConstraint(Sketcher.Constraint("Equal", 1, 4))
sketch12.addConstraint(Sketcher.Constraint("Symmetric", 1, 1, 3, 2, -1))
sketch12.addConstraint(Sketcher.Constraint("Vertical", 0, 2, 4, 1))
sketch12.addConstraint(Sketcher.Constraint("Radius", 1, Q("1.75 in")))
sketch12.addConstraint(Sketcher.Constraint("DistanceX", -1, 1, 1, 1, Q("2 in")))
sketch12.addConstraint(Sketcher.Constraint("DistanceY", 4, 1, 0, 2, Q("2.35 in")))
sketch12.addConstraint(Sketcher.Constraint("DistanceX", 0, 2, 0, 1, Q("6.10549 mm")))
pocket5 = body.newObject("PartDesign::Pocket", "Pocket004")
pocket5.Profile = sketch12
pocket5.Length = Q("10 in")
pocket5.Midplane = True

# Sketch on XZ plane
sketch13 = body.newObject("Sketcher::SketchObject", "Sketch012")
sketch13.AttachmentSupport = (doc.getObject("XZ_Plane"), [""])
sketch13.MapMode = "FlatFace"
sketch13.AttachmentOffset = App.Placement(App.Vector(0, 0, -0.1 * 25.4), App.Rotation())
sketch13.addGeometry(Part.Circle(App.Vector(-29.21, 0, 0), App.Vector(0, 0, 1), 4.826), False)
sketch13.addGeometry(Part.Circle(App.Vector(29.21, 0, 0), App.Vector(0, 0, 1), 4.826), False)
sketch13.addConstraint(Sketcher.Constraint("Equal", 0, 1))
sketch13.addConstraint(Sketcher.Constraint("Symmetric", 0, 3, 1, 3, -1, 1))
sketch13.addConstraint(Sketcher.Constraint("PointOnObject", 0, 3, -1))
sketch13.addConstraint(Sketcher.Constraint("Diameter", 0, Q("0.38 in")))
sketch13.addConstraint(Sketcher.Constraint("DistanceX", 0, 3, 1, 3, Q("2.3 in")))
pad8 = body.newObject("PartDesign::Pad", "Pad007")
pad8.Profile = sketch13
pad8.Length = Q("0.125 in")
pad8.Reversed = True

doc.recompute()
